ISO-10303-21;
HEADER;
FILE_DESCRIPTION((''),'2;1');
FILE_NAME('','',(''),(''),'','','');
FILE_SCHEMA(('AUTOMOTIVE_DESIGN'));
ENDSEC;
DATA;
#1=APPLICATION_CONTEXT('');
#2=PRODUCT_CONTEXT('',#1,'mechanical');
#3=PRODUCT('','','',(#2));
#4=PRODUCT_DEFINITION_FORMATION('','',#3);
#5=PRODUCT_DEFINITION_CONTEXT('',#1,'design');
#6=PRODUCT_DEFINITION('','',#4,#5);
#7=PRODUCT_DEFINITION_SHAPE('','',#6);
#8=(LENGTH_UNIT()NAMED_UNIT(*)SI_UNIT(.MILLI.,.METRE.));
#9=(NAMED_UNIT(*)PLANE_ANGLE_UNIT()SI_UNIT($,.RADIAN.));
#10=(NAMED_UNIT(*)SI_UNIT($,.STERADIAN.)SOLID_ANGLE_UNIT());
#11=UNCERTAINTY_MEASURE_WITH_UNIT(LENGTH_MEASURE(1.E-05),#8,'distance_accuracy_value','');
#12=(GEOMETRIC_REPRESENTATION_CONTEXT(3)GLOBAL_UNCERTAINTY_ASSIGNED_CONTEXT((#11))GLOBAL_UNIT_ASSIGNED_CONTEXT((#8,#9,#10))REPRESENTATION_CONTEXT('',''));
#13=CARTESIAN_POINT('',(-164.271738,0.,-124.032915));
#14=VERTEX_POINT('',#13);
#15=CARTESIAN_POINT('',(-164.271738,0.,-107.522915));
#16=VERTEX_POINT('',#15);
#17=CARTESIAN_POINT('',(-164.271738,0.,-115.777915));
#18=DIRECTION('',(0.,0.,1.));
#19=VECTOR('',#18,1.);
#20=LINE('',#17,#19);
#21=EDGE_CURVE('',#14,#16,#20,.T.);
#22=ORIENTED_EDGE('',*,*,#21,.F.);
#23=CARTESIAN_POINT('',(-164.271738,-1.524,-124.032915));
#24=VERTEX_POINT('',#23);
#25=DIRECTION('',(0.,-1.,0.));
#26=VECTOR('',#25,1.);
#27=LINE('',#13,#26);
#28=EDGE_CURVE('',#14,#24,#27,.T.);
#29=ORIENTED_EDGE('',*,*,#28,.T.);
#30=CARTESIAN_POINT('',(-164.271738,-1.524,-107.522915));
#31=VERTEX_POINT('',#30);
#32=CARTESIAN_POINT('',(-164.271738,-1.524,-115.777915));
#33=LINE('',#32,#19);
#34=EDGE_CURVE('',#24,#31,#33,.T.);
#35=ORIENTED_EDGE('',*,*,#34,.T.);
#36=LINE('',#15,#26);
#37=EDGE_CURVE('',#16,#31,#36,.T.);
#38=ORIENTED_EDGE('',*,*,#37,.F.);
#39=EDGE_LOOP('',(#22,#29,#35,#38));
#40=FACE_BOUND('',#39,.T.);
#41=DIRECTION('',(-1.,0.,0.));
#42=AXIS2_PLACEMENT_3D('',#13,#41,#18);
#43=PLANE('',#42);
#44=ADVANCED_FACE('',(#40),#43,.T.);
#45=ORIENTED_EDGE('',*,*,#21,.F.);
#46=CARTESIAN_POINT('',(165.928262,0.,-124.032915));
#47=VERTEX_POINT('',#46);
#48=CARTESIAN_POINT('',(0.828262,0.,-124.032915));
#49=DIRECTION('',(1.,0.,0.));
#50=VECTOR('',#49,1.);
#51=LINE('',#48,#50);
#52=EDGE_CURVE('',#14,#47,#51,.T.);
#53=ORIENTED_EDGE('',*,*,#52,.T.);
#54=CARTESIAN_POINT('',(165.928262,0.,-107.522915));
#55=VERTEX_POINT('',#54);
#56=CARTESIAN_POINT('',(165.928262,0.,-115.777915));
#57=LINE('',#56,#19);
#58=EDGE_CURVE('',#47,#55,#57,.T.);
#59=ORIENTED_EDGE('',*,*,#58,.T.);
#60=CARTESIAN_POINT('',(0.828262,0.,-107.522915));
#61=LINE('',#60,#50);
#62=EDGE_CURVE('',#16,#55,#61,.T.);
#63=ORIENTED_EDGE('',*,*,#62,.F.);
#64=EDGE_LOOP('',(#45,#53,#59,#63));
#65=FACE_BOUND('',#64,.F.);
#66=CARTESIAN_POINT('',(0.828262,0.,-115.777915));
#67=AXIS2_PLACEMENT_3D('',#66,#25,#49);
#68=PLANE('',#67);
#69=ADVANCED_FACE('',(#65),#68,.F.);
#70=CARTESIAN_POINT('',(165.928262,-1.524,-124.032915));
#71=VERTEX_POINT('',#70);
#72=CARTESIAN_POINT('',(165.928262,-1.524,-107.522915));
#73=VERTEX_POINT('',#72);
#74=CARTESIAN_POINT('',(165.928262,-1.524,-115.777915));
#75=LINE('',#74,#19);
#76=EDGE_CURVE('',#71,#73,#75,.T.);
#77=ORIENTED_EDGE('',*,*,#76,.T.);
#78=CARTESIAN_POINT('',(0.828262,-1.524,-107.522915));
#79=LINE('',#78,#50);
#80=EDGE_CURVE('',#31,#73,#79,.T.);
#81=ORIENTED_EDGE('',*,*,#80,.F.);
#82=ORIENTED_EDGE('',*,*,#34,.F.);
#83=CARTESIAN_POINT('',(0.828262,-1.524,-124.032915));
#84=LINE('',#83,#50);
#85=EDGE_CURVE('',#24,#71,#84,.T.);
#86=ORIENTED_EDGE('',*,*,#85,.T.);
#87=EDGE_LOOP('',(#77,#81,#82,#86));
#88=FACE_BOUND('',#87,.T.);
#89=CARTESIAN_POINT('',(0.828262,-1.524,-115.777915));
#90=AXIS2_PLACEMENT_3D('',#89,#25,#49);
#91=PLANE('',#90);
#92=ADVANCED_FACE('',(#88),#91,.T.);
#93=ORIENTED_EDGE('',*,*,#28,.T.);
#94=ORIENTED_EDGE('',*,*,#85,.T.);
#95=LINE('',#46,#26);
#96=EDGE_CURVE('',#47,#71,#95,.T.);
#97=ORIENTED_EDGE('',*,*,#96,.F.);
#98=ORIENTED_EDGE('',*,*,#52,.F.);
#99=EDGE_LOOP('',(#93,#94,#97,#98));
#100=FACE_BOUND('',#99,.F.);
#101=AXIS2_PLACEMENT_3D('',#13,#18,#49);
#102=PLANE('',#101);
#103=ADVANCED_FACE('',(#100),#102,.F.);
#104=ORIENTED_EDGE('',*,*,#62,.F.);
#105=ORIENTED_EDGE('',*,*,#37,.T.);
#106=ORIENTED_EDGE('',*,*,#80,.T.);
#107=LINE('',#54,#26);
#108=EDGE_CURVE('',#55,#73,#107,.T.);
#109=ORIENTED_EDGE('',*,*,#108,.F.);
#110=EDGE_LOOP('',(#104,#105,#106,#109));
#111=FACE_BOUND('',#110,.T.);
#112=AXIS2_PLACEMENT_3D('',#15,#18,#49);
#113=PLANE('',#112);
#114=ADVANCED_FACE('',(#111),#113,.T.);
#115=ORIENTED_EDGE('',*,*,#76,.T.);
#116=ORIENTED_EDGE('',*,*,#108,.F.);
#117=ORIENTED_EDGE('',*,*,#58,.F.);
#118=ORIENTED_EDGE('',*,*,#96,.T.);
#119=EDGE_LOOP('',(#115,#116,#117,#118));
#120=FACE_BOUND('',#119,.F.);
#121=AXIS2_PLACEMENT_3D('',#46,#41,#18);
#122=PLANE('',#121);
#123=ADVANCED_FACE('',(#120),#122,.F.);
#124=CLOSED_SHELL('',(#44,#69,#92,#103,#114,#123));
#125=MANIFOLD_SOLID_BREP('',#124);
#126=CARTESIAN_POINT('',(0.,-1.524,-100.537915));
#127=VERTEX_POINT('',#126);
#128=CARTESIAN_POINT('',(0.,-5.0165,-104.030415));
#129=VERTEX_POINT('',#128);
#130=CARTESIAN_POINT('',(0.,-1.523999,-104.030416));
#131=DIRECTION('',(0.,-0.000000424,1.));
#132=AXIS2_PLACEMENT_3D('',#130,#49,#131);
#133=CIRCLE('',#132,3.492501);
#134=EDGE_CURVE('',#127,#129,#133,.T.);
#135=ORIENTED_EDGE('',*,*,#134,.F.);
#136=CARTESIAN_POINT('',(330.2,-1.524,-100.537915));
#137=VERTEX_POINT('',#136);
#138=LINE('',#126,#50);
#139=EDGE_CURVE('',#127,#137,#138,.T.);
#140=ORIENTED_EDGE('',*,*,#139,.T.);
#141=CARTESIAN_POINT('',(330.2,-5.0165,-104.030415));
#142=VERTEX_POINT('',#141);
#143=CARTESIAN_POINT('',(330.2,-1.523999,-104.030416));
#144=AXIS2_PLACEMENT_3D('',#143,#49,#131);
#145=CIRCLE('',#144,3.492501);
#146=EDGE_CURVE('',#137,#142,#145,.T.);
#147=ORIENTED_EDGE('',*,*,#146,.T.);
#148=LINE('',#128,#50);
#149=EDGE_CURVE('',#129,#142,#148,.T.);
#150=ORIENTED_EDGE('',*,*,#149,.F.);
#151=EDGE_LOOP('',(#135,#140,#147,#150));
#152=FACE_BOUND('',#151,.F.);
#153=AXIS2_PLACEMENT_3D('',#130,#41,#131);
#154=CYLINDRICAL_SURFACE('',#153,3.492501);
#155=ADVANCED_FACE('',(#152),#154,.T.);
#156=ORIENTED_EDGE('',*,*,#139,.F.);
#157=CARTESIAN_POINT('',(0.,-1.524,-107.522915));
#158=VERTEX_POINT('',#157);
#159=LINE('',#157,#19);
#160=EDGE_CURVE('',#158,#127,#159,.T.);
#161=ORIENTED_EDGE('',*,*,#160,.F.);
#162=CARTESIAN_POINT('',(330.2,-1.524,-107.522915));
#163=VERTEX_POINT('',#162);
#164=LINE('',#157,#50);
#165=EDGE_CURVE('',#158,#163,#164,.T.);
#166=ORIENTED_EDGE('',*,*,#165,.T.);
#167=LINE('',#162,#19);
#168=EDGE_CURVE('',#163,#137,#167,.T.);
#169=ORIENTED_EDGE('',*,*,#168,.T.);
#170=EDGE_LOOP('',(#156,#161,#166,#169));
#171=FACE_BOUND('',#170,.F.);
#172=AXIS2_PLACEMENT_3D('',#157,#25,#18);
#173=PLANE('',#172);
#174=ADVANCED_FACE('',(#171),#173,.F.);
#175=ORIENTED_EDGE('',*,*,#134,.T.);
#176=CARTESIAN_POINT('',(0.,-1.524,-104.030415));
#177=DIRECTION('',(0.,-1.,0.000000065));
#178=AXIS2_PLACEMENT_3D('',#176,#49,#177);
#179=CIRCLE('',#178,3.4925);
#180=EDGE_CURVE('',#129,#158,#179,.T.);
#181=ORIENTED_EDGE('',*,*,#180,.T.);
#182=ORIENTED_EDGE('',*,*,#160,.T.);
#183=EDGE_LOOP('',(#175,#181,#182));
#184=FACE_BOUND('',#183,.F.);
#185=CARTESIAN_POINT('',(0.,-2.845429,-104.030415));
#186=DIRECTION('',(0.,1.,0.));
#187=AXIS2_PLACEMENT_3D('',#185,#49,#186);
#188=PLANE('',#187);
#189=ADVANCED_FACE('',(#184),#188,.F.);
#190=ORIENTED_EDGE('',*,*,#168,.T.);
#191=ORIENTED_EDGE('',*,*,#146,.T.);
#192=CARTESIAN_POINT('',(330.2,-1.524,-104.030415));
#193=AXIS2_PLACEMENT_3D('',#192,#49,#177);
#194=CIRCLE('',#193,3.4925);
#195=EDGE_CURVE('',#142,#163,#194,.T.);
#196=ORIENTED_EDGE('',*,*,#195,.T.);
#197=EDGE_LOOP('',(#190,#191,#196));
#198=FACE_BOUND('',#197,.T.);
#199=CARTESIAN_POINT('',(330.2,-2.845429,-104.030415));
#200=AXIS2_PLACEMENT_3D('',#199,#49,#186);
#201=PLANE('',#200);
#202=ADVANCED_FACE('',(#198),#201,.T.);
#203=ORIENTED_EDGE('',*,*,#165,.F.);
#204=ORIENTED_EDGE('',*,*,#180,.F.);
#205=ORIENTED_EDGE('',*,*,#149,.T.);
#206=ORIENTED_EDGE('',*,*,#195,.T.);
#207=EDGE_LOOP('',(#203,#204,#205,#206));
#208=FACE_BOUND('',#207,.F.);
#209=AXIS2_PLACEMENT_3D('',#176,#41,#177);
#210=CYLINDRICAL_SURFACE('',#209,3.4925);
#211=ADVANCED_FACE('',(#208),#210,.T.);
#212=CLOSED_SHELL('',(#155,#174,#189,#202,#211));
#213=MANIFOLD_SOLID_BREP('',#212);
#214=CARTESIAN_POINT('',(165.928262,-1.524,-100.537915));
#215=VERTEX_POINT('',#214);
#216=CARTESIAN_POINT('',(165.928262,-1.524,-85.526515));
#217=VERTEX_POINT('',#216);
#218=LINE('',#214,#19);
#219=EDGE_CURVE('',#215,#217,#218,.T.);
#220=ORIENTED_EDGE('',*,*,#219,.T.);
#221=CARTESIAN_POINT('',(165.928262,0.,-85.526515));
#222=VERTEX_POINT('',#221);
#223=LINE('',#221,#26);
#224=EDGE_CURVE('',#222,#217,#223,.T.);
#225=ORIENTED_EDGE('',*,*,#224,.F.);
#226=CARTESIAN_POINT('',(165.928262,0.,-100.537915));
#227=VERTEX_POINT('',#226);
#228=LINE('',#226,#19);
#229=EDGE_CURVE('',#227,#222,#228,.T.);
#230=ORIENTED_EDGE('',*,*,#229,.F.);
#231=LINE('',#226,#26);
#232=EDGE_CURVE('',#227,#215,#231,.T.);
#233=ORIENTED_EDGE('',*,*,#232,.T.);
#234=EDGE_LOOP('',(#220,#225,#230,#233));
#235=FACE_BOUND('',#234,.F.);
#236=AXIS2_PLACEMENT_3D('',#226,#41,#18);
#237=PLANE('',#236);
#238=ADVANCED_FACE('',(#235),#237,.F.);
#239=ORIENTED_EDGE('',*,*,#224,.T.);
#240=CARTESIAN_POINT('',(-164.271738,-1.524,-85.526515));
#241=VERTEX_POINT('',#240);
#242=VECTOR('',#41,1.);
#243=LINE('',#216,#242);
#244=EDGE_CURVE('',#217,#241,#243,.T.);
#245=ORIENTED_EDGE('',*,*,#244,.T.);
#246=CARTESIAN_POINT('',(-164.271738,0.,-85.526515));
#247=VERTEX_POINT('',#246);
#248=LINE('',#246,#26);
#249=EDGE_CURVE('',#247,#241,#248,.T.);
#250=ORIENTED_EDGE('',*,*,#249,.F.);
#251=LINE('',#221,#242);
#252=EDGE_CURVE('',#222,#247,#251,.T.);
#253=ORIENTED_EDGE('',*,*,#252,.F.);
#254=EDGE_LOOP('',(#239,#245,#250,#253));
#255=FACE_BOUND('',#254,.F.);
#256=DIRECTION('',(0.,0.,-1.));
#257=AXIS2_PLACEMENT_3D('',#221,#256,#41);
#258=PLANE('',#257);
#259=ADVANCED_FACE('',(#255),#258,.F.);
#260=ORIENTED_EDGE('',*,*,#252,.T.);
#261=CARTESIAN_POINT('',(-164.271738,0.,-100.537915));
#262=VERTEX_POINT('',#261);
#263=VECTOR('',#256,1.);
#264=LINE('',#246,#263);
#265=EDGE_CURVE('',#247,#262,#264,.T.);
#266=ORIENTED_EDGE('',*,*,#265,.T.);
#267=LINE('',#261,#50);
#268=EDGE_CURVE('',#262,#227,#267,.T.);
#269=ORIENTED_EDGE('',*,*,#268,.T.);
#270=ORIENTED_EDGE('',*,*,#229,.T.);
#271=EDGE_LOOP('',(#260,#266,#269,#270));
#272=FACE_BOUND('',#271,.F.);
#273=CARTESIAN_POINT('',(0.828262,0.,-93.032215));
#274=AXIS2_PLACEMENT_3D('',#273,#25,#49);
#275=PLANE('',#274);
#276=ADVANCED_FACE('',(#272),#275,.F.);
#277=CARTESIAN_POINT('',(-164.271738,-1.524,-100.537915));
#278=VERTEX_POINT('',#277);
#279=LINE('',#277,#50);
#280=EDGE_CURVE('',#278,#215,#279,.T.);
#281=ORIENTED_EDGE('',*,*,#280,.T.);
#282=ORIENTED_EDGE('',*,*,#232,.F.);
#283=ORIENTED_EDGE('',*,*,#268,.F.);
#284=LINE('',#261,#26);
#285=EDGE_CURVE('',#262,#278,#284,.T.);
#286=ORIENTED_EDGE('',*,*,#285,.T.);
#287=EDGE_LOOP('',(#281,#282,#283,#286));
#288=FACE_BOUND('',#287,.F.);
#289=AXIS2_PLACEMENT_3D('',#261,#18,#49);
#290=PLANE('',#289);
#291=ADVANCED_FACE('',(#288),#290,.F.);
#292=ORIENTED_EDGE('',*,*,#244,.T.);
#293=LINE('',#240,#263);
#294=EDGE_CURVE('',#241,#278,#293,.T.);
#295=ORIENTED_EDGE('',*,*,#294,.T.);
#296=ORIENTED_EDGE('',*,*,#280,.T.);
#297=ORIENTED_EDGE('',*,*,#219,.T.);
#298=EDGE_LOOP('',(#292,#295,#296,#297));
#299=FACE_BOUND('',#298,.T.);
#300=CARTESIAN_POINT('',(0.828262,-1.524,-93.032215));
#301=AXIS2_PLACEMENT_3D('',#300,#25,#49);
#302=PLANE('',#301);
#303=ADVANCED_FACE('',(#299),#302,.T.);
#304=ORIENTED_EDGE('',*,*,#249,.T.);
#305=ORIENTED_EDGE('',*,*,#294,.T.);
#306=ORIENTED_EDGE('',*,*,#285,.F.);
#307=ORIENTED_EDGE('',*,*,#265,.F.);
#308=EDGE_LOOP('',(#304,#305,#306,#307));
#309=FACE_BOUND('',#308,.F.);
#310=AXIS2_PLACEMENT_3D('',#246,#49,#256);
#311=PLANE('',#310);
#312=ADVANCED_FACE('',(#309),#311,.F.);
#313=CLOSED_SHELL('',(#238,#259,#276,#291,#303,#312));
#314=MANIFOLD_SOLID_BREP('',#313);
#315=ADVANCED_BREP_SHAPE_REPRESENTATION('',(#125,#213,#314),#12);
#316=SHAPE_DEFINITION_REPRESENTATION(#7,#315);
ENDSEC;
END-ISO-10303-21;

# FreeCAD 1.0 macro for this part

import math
import FreeCAD as App
import Part
import Sketcher
Q = App.Units.Quantity

doc = App.newDocument("Part")
body = doc.addObject("PartDesign::Body", "Body")
body.AllowCompound = True

sketch1 = body.newObject("Sketcher::SketchObject", "Sketch")
sketch1.AttachmentSupport = (doc.getObject("XZ_Plane"), [""])
sketch1.MapMode = "FlatFace"
sketch1.addGeometry([
    Part.LineSegment(App.Vector(166, -86, 0), App.Vector(-164, -86, 0)),
    Part.LineSegment(App.Vector(-164, -86, 0), App.Vector(-164, -101, 0)),
    Part.LineSegment(App.Vector(-164, -101, 0), App.Vector(166, -101, 0)),
    Part.LineSegment(App.Vector(166, -101, 0), App.Vector(166, -86, 0)),
    Part.LineSegment(App.Vector(-164, -108, 0), App.Vector(-164, -124, 0)),
    Part.LineSegment(App.Vector(-164, -124, 0), App.Vector(166, -124, 0)),
    Part.LineSegment(App.Vector(166, -124, 0), App.Vector(166, -108, 0)),
    Part.LineSegment(App.Vector(166, -108, 0), App.Vector(-164, -108, 0)),
], False)
sketch1.addConstraint([
    Sketcher.Constraint("Coincident", 0, 2, 1, 1),
    Sketcher.Constraint("Coincident", 1, 2, 2, 1),
    Sketcher.Constraint("Coincident", 2, 2, 3, 1),
    Sketcher.Constraint("Coincident", 3, 2, 0, 1),
    Sketcher.Constraint("Coincident", 4, 2, 5, 1),
    Sketcher.Constraint("Coincident", 5, 2, 6, 1),
    Sketcher.Constraint("Coincident", 6, 2, 7, 1),
    Sketcher.Constraint("Coincident", 7, 2, 4, 1),
    Sketcher.Constraint("Horizontal", 0),
    Sketcher.Constraint("Vertical", 1),
    Sketcher.Constraint("Horizontal", 2),
    Sketcher.Constraint("Vertical", 3),
    Sketcher.Constraint("Vertical", 4),
    Sketcher.Constraint("Horizontal", 5),
    Sketcher.Constraint("Vertical", 6),
    Sketcher.Constraint("Horizontal", 7),
    Sketcher.Constraint("Vertical", 1, 2, 4, 2),
    Sketcher.Constraint("Vertical", 3, 2, 5, 2),
    Sketcher.Constraint("DistanceX", 0, 2, 0, 1, Q("13 in")),
    Sketcher.Constraint("DistanceY", 4, 2, 4, 1, Q("0.65 in")),
    Sketcher.Constraint("DistanceY", 1, 2, 1, 1, Q("0.591 in")),
    Sketcher.Constraint("DistanceY", 4, 2, 1, 2, Q("0.925 in")),
    Sketcher.Constraint("DistanceX", 0, 2, -1, 1, Q("164.271738 mm")),
    Sketcher.Constraint("DistanceY", 0, 2, -1, 1, Q("85.526515 mm")),
])
pad1 = body.newObject("PartDesign::Pad", "Pad")
pad1.Profile = sketch1
pad1.Length = Q("0.06 in")
body2 = doc.addObject("PartDesign::Body", "Body001")

sketch2 = body2.newObject("Sketcher::SketchObject", "Sketch001")
sketch2.AttachmentSupport = (doc.getObject("YZ_Plane001"), [""])
sketch2.MapMode = "FlatFace"
sketch2.addGeometry([
    Part.LineSegment(App.Vector(-1.5, -107.5, 0), App.Vector(-1.5, -100.5, 0)),
    Part.ArcOfCircle(Part.Circle(App.Vector(-1.5, -104, 0), App.Vector(0, 0, 1), 3.5), math.radians(90), math.radians(180)),
    Part.ArcOfCircle(Part.Circle(App.Vector(-1.5, -104, 0), App.Vector(0, 0, 1), 3.5), math.radians(180), math.radians(270)),
], False)
sketch2.addConstraint([
    Sketcher.Constraint("Coincident", 0, 2, 1, 1),
    Sketcher.Constraint("Tangent", 1, 2, 2, 1),
    Sketcher.Constraint("Coincident", 2, 2, 0, 1),
    Sketcher.Constraint("Vertical", 0),
    Sketcher.Constraint("Equal", 1, 2),
    Sketcher.Constraint("Horizontal", 2, 3, 1, 2),
    Sketcher.Constraint("Vertical", 2, 3, 0, 2),
    Sketcher.Constraint("Radius", 1, Q("0.1375001 in")),
    Sketcher.Constraint("DistanceX", 1, 3, -1, 1, Q("0.0599999 in")),
    Sketcher.Constraint("DistanceY", 1, 3, -1, 1, Q("104.030416 mm")),
])
pad2 = body2.newObject("PartDesign::Pad", "Pad001")
pad2.Profile = sketch2
pad2.Length = Q("13 in")

doc.recompute()
